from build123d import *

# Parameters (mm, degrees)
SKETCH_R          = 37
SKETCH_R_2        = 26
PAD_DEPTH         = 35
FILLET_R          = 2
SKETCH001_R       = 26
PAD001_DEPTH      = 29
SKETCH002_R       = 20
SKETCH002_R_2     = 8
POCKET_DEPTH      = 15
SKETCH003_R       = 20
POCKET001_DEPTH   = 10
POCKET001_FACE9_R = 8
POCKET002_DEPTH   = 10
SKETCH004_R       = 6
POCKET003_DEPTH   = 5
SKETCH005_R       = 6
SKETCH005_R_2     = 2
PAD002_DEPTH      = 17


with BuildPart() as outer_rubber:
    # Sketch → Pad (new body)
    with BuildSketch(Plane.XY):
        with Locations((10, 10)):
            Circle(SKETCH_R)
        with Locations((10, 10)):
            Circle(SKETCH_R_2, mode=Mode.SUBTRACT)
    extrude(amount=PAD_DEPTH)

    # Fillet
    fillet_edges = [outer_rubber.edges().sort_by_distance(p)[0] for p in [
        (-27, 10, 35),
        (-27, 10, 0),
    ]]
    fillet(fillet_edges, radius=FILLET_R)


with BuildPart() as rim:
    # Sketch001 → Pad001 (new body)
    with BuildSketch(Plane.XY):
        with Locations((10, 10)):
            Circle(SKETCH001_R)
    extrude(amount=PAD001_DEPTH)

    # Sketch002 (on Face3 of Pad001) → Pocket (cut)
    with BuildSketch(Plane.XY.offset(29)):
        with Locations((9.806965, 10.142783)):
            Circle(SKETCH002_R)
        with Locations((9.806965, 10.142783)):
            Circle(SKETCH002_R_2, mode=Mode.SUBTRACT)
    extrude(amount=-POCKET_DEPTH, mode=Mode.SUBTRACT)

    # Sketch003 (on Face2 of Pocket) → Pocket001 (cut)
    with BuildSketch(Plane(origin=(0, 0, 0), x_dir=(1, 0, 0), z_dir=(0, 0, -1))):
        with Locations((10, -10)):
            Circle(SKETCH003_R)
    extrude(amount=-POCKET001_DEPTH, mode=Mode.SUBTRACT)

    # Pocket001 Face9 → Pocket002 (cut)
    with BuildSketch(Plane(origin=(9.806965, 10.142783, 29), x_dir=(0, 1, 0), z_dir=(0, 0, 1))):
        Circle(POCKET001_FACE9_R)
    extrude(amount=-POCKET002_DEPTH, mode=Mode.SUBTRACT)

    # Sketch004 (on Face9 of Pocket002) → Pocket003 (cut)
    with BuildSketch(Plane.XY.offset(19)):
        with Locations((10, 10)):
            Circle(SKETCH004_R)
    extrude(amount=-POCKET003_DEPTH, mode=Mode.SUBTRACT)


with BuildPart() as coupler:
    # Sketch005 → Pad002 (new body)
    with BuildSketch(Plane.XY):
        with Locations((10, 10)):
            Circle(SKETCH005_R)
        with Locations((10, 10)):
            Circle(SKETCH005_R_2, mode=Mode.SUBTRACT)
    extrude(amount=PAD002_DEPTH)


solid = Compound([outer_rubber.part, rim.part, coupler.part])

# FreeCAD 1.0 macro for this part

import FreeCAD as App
import Part
import Sketcher
from FreeCAD import Vector
Q = App.Units.Quantity


def edges_at(feature, points):
    """Names of the edges that pass closest to the given points."""
    edges = feature.Shape.Edges
    near = lambda p: min(range(len(edges)), key=lambda i: edges[i].distToShape(Part.Vertex(*p))[0])
    return sorted({f"Edge{near(p) + 1}" for p in points})

doc = App.newDocument("Part")
body = doc.addObject("PartDesign::Body", "Body")

# Sketch on XY plane
sketch1 = body.newObject("Sketcher::SketchObject", "Sketch")
sketch1.AttachmentSupport = (doc.getObject("XY_Plane"), [""])
sketch1.MapMode = "FlatFace"
sketch1.addGeometry(Part.Circle(Vector(10, 10, 0), Vector(0, 0, 1), 37), False)
sketch1.addGeometry(Part.Circle(Vector(10, 10, 0), Vector(0, 0, 1), 26), False)
sketch1.addConstraint(Sketcher.Constraint("Coincident", 1, 3, 0, 3))
sketch1.addConstraint(Sketcher.Constraint("Diameter", 0, Q("74 mm")))
sketch1.addConstraint(Sketcher.Constraint("Diameter", 1, Q("52 mm")))
sketch1.addConstraint(Sketcher.Constraint("DistanceX", -1, 1, 0, 3, Q("10 mm")))
sketch1.addConstraint(Sketcher.Constraint("DistanceY", -1, 1, 0, 3, Q("10 mm")))
pad1 = body.newObject("PartDesign::Pad", "Pad")
pad1.Profile = sketch1
pad1.Length = 35
doc.recompute()

fillet = body.newObject("PartDesign::Fillet", "Fillet")
fillet.Base = (pad1, edges_at(pad1, [(-27, 10, 35), (-27, 10, 0)]))
fillet.Radius = 2
body2 = doc.addObject("PartDesign::Body", "Body001")

# Sketch on XY plane
sketch2 = body2.newObject("Sketcher::SketchObject", "Sketch001")
sketch2.AttachmentSupport = (doc.getObject("XY_Plane001"), [""])
sketch2.MapMode = "FlatFace"
sketch2.addGeometry(Part.Circle(Vector(10, 10, 0), Vector(0, 0, 1), 26), False)
sketch2.addConstraint(Sketcher.Constraint("Diameter", 0, Q("52 mm")))
sketch2.addConstraint(Sketcher.Constraint("DistanceX", -1, 1, 0, 3, Q("10 mm")))
sketch2.addConstraint(Sketcher.Constraint("DistanceY", -1, 1, 0, 3, Q("10 mm")))
pad2 = body2.newObject("PartDesign::Pad", "Pad001")
pad2.Profile = sketch2
pad2.Length = 29

# Sketch on XY plane
sketch3 = body2.newObject("Sketcher::SketchObject", "Sketch002")
sketch3.AttachmentSupport = (doc.getObject("XY_Plane001"), [""])
sketch3.MapMode = "FlatFace"
sketch3.AttachmentOffset = App.Placement(Vector(0, 0, 29), App.Rotation())
sketch3.addGeometry(Part.Circle(Vector(10, 10, 0), Vector(0, 0, 1), 20), False)
sketch3.addGeometry(Part.Circle(Vector(10, 10, 0), Vector(0, 0, 1), 8), False)
sketch3.addConstraint(Sketcher.Constraint("Coincident", 1, 3, 0, 3))
sketch3.addConstraint(Sketcher.Constraint("Diameter", 0, Q("40 mm")))
sketch3.addConstraint(Sketcher.Constraint("Diameter", 1, Q("16 mm")))
sketch3.addConstraint(Sketcher.Constraint("DistanceX", -1, 1, 0, 3, Q("9.806965 mm")))
sketch3.addConstraint(Sketcher.Constraint("DistanceY", -1, 1, 0, 3, Q("10.142783 mm")))
pocket1 = body2.newObject("PartDesign::Pocket", "Pocket")
pocket1.Profile = sketch3
pocket1.Length = 15

# Sketch on XY plane
sketch4 = body2.newObject("Sketcher::SketchObject", "Sketch003")
sketch4.AttachmentSupport = (doc.getObject("XY_Plane001"), [""])
sketch4.MapMode = "FlatFace"
sketch4.addGeometry(Part.Circle(Vector(10, 10, 0), Vector(0, 0, 1), 20), False)
sketch4.addConstraint(Sketcher.Constraint("Diameter", 0, Q("40 mm")))
sketch4.addConstraint(Sketcher.Constraint("DistanceX", -1, 1, 0, 3, Q("10 mm")))
sketch4.addConstraint(Sketcher.Constraint("DistanceY", -1, 1, 0, 3, Q("10 mm")))
pocket2 = body2.newObject("PartDesign::Pocket", "Pocket001")
pocket2.Profile = sketch4
pocket2.Length = 10
pocket2.Reversed = True

# Sketch on XY plane
sketch5 = body2.newObject("Sketcher::SketchObject", "Sketch004")
sketch5.AttachmentSupport = (doc.getObject("XY_Plane001"), [""])
sketch5.MapMode = "FlatFace"
sketch5.AttachmentOffset = App.Placement(Vector(0, 0, 29), App.Rotation())
sketch5.addGeometry(Part.Circle(Vector(10, 10, 0), Vector(0, 0, 1), 8), False)
sketch5.addConstraint(Sketcher.Constraint("Diameter", 0, Q("16 mm")))
sketch5.addConstraint(Sketcher.Constraint("DistanceX", -1, 1, 0, 3, Q("9.806965 mm")))
sketch5.addConstraint(Sketcher.Constraint("DistanceY", -1, 1, 0, 3, Q("10.142783 mm")))
pocket3 = body2.newObject("PartDesign::Pocket", "Pocket002")
pocket3.Profile = sketch5
pocket3.Length = 10

# Sketch on XY plane
sketch6 = body2.newObject("Sketcher::SketchObject", "Sketch005")
sketch6.AttachmentSupport = (doc.getObject("XY_Plane001"), [""])
sketch6.MapMode = "FlatFace"
sketch6.AttachmentOffset = App.Placement(Vector(0, 0, 19), App.Rotation())
sketch6.addGeometry(Part.Circle(Vector(10, 10, 0), Vector(0, 0, 1), 6), False)
sketch6.addConstraint(Sketcher.Constraint("Diameter", 0, Q("12 mm")))
sketch6.addConstraint(Sketcher.Constraint("DistanceX", -1, 1, 0, 3, Q("10 mm")))
sketch6.addConstraint(Sketcher.Constraint("DistanceY", -1, 1, 0, 3, Q("10 mm")))
pocket4 = body2.newObject("PartDesign::Pocket", "Pocket003")
pocket4.Profile = sketch6
pocket4.Length = 5
body3 = doc.addObject("PartDesign::Body", "Body002")

# Sketch on XY plane
sketch7 = body3.newObject("Sketcher::SketchObject", "Sketch006")
sketch7.AttachmentSupport = (doc.getObject("XY_Plane002"), [""])
sketch7.MapMode = "FlatFace"
sketch7.addGeometry(Part.Circle(Vector(10, 10, 0), Vector(0, 0, 1), 6), False)
sketch7.addGeometry(Part.Circle(Vector(10, 10, 0), Vector(0, 0, 1), 2), False)
sketch7.addConstraint(Sketcher.Constraint("Coincident", 1, 3, 0, 3))
sketch7.addConstraint(Sketcher.Constraint("Diameter", 0, Q("12 mm")))
sketch7.addConstraint(Sketcher.Constraint("Diameter", 1, Q("4 mm")))
sketch7.addConstraint(Sketcher.Constraint("DistanceX", -1, 1, 0, 3, Q("10 mm")))
sketch7.addConstraint(Sketcher.Constraint("DistanceY", -1, 1, 0, 3, Q("10 mm")))
pad3 = body3.newObject("PartDesign::Pad", "Pad002")
pad3.Profile = sketch7
pad3.Length = 17

doc.recompute()
